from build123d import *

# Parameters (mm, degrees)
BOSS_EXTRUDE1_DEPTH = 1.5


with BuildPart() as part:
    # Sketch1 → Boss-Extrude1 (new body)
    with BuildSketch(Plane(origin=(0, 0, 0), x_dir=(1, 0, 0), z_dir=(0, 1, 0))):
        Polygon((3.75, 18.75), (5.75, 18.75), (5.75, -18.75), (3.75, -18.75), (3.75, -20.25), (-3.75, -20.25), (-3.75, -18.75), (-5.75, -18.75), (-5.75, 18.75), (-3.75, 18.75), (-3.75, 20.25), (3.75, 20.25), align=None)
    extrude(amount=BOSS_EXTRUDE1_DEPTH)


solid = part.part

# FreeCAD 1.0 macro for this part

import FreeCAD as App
import Part
import Sketcher


def add_polygon(sketch, points):
    """Adds a closed chain of lines whose ends are joined by coincident constraints."""
    first, n = sketch.GeometryCount, len(points)
    for a, b in zip(points, points[1:] + points[:1]):
        sketch.addGeometry(Part.LineSegment(App.Vector(*a, 0), App.Vector(*b, 0)), False)
    for i in range(n):
        sketch.addConstraint(Sketcher.Constraint("Coincident", first + i, 2, first + (i + 1) % n, 1))

doc = App.newDocument("Part")
body = doc.addObject("PartDesign::Body", "Body")

# Sketch on XZ plane
sketch1 = body.newObject("Sketcher::SketchObject", "Sketch")
sketch1.AttachmentSupport = (doc.getObject("XZ_Plane"), [""])
sketch1.MapMode = "FlatFace"
add_polygon(sketch1, [(5.75, -18.75), (3.75, -18.75), (3.75, -20.25), (-3.75, -20.25), (-3.75, -18.75), (-5.75, -18.75), (-5.75, 18.75), (-3.75, 18.75), (-3.75, 20.25), (3.75, 20.25), (3.75, 18.75), (5.75, 18.75)])  # lines 0-11
sketch1.addConstraint(Sketcher.Constraint("Horizontal", 0))
sketch1.addConstraint(Sketcher.Constraint("Vertical", 1))
sketch1.addConstraint(Sketcher.Constraint("Horizontal", 2))
sketch1.addConstraint(Sketcher.Constraint("Vertical", 3))
sketch1.addConstraint(Sketcher.Constraint("Horizontal", 4))
sketch1.addConstraint(Sketcher.Constraint("Vertical", 5))
sketch1.addConstraint(Sketcher.Constraint("Horizontal", 6))
sketch1.addConstraint(Sketcher.Constraint("Vertical", 7))
sketch1.addConstraint(Sketcher.Constraint("Horizontal", 8))
sketch1.addConstraint(Sketcher.Constraint("Vertical", 9))
sketch1.addConstraint(Sketcher.Constraint("Horizontal", 10))
sketch1.addConstraint(Sketcher.Constraint("Vertical", 11))
sketch1.addConstraint(Sketcher.Constraint("Symmetric", 0, 2, 6, 2, -1, 1))
sketch1.addConstraint(Sketcher.Constraint("Symmetric", 2, 2, 8, 2, -1, 1))
sketch1.addConstraint(Sketcher.Constraint("Symmetric", 4, 2, 10, 2, -1, 1))
sketch1.addConstraint(Sketcher.Constraint("Symmetric", 0, 2, 3, 2, -2))
sketch1.addConstraint(Sketcher.Constraint("DistanceX", 0, 2, 0, 1, 2.0))
sketch1.addConstraint(Sketcher.Constraint("DistanceX", 2, 2, 2, 1, 7.5))
sketch1.addConstraint(Sketcher.Constraint("DistanceY", 1, 2, 1, 1, 1.5))
sketch1.addConstraint(Sketcher.Constraint("DistanceY", 5, 1, 5, 2, 37.5))
pad1 = body.newObject("PartDesign::Pad", "Pad")
pad1.Profile = sketch1
pad1.Length = 1.5
pad1.Reversed = True

doc.recompute()
